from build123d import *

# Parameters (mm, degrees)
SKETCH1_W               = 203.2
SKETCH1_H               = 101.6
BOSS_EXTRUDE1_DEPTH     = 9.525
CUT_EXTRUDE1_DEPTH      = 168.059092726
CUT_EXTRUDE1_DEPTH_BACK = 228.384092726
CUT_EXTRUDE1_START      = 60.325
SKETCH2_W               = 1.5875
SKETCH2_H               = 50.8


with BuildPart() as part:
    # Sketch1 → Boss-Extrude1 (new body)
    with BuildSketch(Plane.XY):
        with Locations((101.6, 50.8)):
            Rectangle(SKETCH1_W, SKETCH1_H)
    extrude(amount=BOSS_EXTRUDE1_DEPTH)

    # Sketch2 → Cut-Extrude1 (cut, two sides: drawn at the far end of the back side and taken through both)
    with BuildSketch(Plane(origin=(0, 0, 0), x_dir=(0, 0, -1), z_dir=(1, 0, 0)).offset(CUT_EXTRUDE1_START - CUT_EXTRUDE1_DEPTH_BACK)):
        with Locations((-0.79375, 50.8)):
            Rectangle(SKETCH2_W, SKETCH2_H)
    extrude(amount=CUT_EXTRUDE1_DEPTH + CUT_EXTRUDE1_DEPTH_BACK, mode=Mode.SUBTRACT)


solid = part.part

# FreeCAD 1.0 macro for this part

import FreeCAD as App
import Part
import Sketcher

V = App.Vector
Q = App.Units.Quantity


def add_polygon(sketch, points):
    """Adds a closed chain of lines whose ends are joined by coincident constraints."""
    first, n = sketch.GeometryCount, len(points)
    for a, b in zip(points, points[1:] + points[:1]):
        sketch.addGeometry(Part.LineSegment(App.Vector(*a, 0), App.Vector(*b, 0)), False)
    for i in range(n):
        sketch.addConstraint(Sketcher.Constraint("Coincident", first + i, 2, first + (i + 1) % n, 1))

doc = App.newDocument("Part")
params = doc.addObject("Spreadsheet::Sheet", "Params")
for row, (alias, value) in enumerate([
    ("sketch1_width", "8 in"),
    ("sketch1_height", "4 in"),
    ("pad1_length", "0.375 in"),
    ("sketch2_width", "2 in"),
    ("sketch2_height", "0.0625 in"),
], start=1):
    params.set(f"A{row}", alias)
    params.set(f"B{row}", "=" + value)
    params.setAlias(f"B{row}", alias)

body = doc.addObject("PartDesign::Body", "Body")

# Sketch on XY plane
sketch1 = doc.addObject("Sketcher::SketchObject", "Sketch")
body.addObject(sketch1)
sketch1.AttachmentSupport = (doc.XY_Plane, [""])
sketch1.MapMode = "FlatFace"
add_polygon(sketch1, [(0, 102), (0, 0), (203, 0), (203, 102)])  # lines 0-3
sketch1.addConstraint(Sketcher.Constraint("Vertical", 0))
sketch1.addConstraint(Sketcher.Constraint("Horizontal", 1))
sketch1.addConstraint(Sketcher.Constraint("Vertical", 2))
sketch1.addConstraint(Sketcher.Constraint("Horizontal", 3))
sketch1.addConstraint(Sketcher.Constraint("Coincident", 0, 2, -1, 1))
sketch1.addConstraint(Sketcher.Constraint("DistanceX", 1, 1, 1, 2, Q("8 in")))
sketch1.addConstraint(Sketcher.Constraint("DistanceY", 0, 2, 0, 1, Q("4 in")))
sketch1.setExpression("Constraints[9]", "Params.sketch1_width")
sketch1.setExpression("Constraints[10]", "Params.sketch1_height")
pad1 = doc.addObject("PartDesign::Pad", "Pad")
body.addObject(pad1)
pad1.Profile = sketch1
pad1.setExpression("Length", "Params.pad1_length")

# Sketch on YZ plane
sketch2 = doc.addObject("Sketcher::SketchObject", "Sketch001")
body.addObject(sketch2)
sketch2.AttachmentSupport = (doc.YZ_Plane, [""])
sketch2.MapMode = "FlatFace"
sketch2.AttachmentOffset = App.Placement(V(0, 0, 2.375 * 25.4), App.Rotation())
add_polygon(sketch2, [(76.2, 1.6), (25.4, 1.6), (25.4, 0), (76.2, 0)])  # lines 0-3
sketch2.addConstraint(Sketcher.Constraint("Horizontal", 0))
sketch2.addConstraint(Sketcher.Constraint("Vertical", 1))
sketch2.addConstraint(Sketcher.Constraint("Horizontal", 2))
sketch2.addConstraint(Sketcher.Constraint("Vertical", 3))
sketch2.addConstraint(Sketcher.Constraint("PointOnObject", 1, 2, -1))
sketch2.addConstraint(Sketcher.Constraint("DistanceX", 0, 2, 0, 1, Q("2 in")))
sketch2.addConstraint(Sketcher.Constraint("DistanceX", -1, 1, 0, 2, Q("1 in")))
sketch2.addConstraint(Sketcher.Constraint("DistanceY", 1, 2, 1, 1, Q("0.0625 in")))
sketch2.setExpression("Constraints[9]", "Params.sketch2_width")
sketch2.setExpression("Constraints[11]", "Params.sketch2_height")
pocket1 = doc.addObject("PartDesign::Pocket", "Pocket")
body.addObject(pocket1)
pocket1.Profile = sketch2
pocket1.Type = "ThroughAll"
pocket1.Midplane = True

doc.recompute()
